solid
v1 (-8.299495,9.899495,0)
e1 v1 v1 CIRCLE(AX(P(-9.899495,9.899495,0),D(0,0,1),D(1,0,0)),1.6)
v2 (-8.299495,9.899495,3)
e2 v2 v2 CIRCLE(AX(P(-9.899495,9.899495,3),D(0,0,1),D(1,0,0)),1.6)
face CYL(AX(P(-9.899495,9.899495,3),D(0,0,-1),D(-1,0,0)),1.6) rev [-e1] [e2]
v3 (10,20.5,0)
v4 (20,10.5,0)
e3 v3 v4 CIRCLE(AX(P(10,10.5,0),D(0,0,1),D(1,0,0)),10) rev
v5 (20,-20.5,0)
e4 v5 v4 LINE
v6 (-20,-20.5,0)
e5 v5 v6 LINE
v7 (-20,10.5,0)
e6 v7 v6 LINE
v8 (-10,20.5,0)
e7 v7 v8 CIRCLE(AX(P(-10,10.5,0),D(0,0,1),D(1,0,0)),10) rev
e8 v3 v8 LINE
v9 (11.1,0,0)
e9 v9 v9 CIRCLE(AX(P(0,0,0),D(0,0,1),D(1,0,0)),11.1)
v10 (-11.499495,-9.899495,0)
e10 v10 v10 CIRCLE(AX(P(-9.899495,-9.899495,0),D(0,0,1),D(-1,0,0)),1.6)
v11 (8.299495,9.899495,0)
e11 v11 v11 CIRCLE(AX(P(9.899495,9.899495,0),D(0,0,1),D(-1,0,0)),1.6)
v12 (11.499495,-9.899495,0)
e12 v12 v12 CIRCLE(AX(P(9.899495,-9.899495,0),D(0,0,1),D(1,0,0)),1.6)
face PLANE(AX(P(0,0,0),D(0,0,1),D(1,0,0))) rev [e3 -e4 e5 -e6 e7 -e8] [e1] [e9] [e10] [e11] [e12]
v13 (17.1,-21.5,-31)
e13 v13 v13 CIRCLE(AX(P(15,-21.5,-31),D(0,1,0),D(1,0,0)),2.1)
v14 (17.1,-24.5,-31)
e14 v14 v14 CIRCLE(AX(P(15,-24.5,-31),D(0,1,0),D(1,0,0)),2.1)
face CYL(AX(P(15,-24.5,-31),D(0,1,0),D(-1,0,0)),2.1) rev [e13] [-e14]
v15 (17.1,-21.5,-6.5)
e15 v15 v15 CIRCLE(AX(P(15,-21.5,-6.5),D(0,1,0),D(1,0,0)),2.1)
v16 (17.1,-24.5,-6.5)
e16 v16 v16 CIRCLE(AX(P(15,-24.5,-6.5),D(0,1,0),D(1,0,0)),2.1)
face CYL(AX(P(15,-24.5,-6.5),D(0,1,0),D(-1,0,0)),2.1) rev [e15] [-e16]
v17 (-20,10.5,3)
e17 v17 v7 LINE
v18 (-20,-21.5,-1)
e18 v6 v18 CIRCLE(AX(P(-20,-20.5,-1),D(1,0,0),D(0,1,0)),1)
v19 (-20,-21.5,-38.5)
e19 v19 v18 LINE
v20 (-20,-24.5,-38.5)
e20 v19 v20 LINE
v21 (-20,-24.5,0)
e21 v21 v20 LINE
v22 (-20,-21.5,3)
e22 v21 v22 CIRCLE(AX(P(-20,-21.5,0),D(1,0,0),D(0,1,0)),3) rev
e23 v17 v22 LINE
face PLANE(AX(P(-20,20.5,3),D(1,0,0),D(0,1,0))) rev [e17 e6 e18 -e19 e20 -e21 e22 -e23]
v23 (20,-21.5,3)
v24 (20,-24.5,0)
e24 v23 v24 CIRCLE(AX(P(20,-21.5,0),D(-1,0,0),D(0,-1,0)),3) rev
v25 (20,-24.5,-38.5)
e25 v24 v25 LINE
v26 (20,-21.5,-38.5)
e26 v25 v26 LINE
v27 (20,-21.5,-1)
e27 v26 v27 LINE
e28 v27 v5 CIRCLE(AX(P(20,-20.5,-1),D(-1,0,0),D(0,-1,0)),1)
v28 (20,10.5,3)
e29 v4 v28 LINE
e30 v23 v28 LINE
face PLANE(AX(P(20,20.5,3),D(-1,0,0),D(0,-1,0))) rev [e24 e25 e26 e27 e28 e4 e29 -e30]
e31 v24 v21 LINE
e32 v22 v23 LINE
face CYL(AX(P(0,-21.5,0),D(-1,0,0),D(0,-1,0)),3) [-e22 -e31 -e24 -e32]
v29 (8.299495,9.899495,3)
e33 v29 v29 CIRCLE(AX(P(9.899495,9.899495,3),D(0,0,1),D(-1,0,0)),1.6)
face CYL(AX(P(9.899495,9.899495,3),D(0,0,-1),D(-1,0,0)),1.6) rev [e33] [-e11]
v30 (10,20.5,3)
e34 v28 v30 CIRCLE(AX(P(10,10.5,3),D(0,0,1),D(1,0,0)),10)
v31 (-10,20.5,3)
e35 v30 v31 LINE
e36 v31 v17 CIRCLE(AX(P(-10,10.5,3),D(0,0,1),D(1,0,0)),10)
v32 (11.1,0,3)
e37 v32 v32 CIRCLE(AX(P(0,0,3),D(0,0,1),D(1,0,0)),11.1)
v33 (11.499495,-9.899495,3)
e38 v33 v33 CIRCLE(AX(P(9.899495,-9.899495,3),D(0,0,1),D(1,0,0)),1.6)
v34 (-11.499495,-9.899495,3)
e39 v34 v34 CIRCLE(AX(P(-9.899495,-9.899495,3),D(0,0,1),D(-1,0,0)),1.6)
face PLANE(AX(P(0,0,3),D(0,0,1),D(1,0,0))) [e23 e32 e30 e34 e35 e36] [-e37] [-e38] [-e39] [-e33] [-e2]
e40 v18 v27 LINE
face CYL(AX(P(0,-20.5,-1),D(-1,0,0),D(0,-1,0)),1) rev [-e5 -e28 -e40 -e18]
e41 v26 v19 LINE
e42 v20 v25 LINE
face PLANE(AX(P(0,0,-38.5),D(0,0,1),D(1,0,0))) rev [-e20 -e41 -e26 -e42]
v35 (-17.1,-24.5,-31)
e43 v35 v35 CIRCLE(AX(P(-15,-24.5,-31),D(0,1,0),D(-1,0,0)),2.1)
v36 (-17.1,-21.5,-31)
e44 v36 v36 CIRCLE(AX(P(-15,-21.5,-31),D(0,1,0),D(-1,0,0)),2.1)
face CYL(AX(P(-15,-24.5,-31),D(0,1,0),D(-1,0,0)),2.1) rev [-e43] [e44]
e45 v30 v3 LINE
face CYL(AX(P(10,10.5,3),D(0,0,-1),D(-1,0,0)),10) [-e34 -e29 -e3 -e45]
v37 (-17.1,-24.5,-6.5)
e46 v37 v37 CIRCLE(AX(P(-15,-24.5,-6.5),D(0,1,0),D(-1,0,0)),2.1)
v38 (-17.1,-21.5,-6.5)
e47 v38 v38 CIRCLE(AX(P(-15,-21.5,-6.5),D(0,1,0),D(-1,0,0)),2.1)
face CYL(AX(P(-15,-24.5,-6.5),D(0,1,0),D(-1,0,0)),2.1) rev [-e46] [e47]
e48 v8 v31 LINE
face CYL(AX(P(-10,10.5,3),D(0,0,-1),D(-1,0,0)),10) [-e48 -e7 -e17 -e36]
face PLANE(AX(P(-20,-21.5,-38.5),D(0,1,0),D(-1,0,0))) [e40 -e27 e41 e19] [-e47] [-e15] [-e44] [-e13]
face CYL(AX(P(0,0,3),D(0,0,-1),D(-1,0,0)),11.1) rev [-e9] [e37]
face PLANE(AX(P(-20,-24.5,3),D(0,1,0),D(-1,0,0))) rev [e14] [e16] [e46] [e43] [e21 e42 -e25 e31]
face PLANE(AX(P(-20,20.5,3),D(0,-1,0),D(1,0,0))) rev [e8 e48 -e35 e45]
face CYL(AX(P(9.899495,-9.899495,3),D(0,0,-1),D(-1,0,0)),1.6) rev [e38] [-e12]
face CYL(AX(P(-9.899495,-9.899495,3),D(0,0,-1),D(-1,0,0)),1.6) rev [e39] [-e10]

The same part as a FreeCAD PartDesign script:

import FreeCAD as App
import Part
import Sketcher

V = App.Vector


def edges_at(feature, points):
    """Names of the edges that pass closest to the given points."""
    edges = feature.Shape.Edges
    near = lambda p: min(range(len(edges)), key=lambda i: edges[i].distToShape(Part.Vertex(*p))[0])
    return sorted({f"Edge{near(p) + 1}" for p in points})


def add_polygon(sketch, points):
    """Adds a closed chain of lines whose ends are joined by coincident constraints."""
    first, n = sketch.GeometryCount, len(points)
    for a, b in zip(points, points[1:] + points[:1]):
        sketch.addGeometry(Part.LineSegment(App.Vector(*a, 0), App.Vector(*b, 0)), False)
    for i in range(n):
        sketch.addConstraint(Sketcher.Constraint("Coincident", first + i, 2, first + (i + 1) % n, 1))

doc = App.newDocument("Part")
body = doc.addObject("PartDesign::Body", "Body")

sketch1 = body.newObject("Sketcher::SketchObject", "Sketch")
sketch1.AttachmentSupport = (doc.getObject("XY_Plane"), [""])
sketch1.MapMode = "FlatFace"
add_polygon(sketch1, [(-20, 20.5), (-20, -24.5), (20, -24.5), (20, 20.5)])
sketch1.addGeometry(Part.Circle(V(-9.9, -9.9, 0), V(0, 0, 1), 1.6), False)
sketch1.addGeometry(Part.Circle(V(9.9, -9.9, 0), V(0, 0, 1), 1.6), False)
sketch1.addGeometry(Part.Circle(V(-9.9, 9.9, 0), V(0, 0, 1), 1.6), False)
sketch1.addGeometry(Part.Circle(V(0, 0, 0), V(0, 0, 1), 11.1), False)
sketch1.addGeometry(Part.Circle(V(9.9, 9.9, 0), V(0, 0, 1), 1.6), False)
sketch1.addConstraint(Sketcher.Constraint("Vertical", 0))
sketch1.addConstraint(Sketcher.Constraint("Horizontal", 1))
sketch1.addConstraint(Sketcher.Constraint("Vertical", 2))
sketch1.addConstraint(Sketcher.Constraint("Horizontal", 3))
sketch1.addConstraint(Sketcher.Constraint("Coincident", 7, 3, -1, 1))
sketch1.addConstraint(Sketcher.Constraint("Equal", 4, 5))
sketch1.addConstraint(Sketcher.Constraint("Equal", 5, 6))
sketch1.addConstraint(Sketcher.Constraint("Equal", 6, 8))
sketch1.addConstraint(Sketcher.Constraint("Symmetric", 5, 3, 6, 3, -1, 1))
sketch1.addConstraint(Sketcher.Constraint("Symmetric", 4, 3, 8, 3, -1, 1))
sketch1.addConstraint(Sketcher.Constraint("Symmetric", 4, 3, 5, 3, -2))
sketch1.addConstraint(Sketcher.Constraint("Diameter", 4, 3.2))
sketch1.addConstraint(Sketcher.Constraint("Diameter", 7, 22.2))
sketch1.addConstraint(Sketcher.Constraint("DistanceX", 1, 1, 1, 2, 40.0))
sketch1.addConstraint(Sketcher.Constraint("DistanceY", 0, 2, 0, 1, 45.0))
sketch1.addConstraint(Sketcher.Constraint("DistanceX", 0, 2, -1, 1, 20.0))
sketch1.addConstraint(Sketcher.Constraint("DistanceY", 0, 2, -1, 1, 24.5))
sketch1.addConstraint(Sketcher.Constraint("DistanceX", 4, 3, 5, 3, 19.79899))
sketch1.addConstraint(Sketcher.Constraint("DistanceY", 4, 3, 6, 3, 19.79899))
pad1 = body.newObject("PartDesign::Pad", "Pad")
pad1.Profile = sketch1
pad1.Length = 3

sketch2 = body.newObject("Sketcher::SketchObject", "Sketch001")
sketch2.AttachmentSupport = (doc.getObject("XY_Plane"), [""])
sketch2.MapMode = "FlatFace"
sketch2.AttachmentOffset = App.Placement(V(0, 0, 3), App.Rotation())
add_polygon(sketch2, [(-20, -21.5), (-20, -24.5), (20, -24.5), (20, -21.5)])
sketch2.addConstraint(Sketcher.Constraint("Vertical", 0))
sketch2.addConstraint(Sketcher.Constraint("Horizontal", 1))
sketch2.addConstraint(Sketcher.Constraint("Vertical", 2))
sketch2.addConstraint(Sketcher.Constraint("Horizontal", 3))
sketch2.addConstraint(Sketcher.Constraint("DistanceX", 1, 1, 1, 2, 40.0))
sketch2.addConstraint(Sketcher.Constraint("DistanceY", 0, 2, 0, 1, 3.0))
sketch2.addConstraint(Sketcher.Constraint("DistanceX", 0, 2, -1, 1, 20.0))
sketch2.addConstraint(Sketcher.Constraint("DistanceY", 0, 2, -1, 1, 24.5))
pad2 = body.newObject("PartDesign::Pad", "Pad001")
pad2.Profile = sketch2
pad2.Length = 41.5
pad2.Reversed = True

sketch3 = body.newObject("Sketcher::SketchObject", "Sketch002")
sketch3.AttachmentSupport = (doc.getObject("XZ_Plane"), [""])
sketch3.MapMode = "FlatFace"
sketch3.AttachmentOffset = App.Placement(V(0, 0, 21.5), App.Rotation())
sketch3.addGeometry(Part.Circle(V(-15, -31, 0), V(0, 0, 1), 2.1), False)
sketch3.addGeometry(Part.Circle(V(15, -31, 0), V(0, 0, 1), 2.1), False)
sketch3.addGeometry(Part.Circle(V(15, -6.5, 0), V(0, 0, 1), 2.1), False)
sketch3.addGeometry(Part.Circle(V(-15, -6.5, 0), V(0, 0, 1), 2.1), False)
sketch3.addConstraint(Sketcher.Constraint("Equal", 0, 1))
sketch3.addConstraint(Sketcher.Constraint("Equal", 1, 2))
sketch3.addConstraint(Sketcher.Constraint("Equal", 2, 3))
sketch3.addConstraint(Sketcher.Constraint("Symmetric", 0, 3, 1, 3, -2))
sketch3.addConstraint(Sketcher.Constraint("Symmetric", 2, 3, 3, 3, -2))
sketch3.addConstraint(Sketcher.Constraint("Vertical", 1, 3, 2, 3))
sketch3.addConstraint(Sketcher.Constraint("Diameter", 0, 4.2))
sketch3.addConstraint(Sketcher.Constraint("DistanceX", 0, 3, -1, 1, 15.0))
sketch3.addConstraint(Sketcher.Constraint("DistanceY", 0, 3, -1, 1, 31.0))
sketch3.addConstraint(Sketcher.Constraint("DistanceY", 2, 3, -1, 1, 6.5))
pocket1 = body.newObject("PartDesign::Pocket", "Pocket")
pocket1.Profile = sketch3
pocket1.Type = "ThroughAll"
pocket1.Reversed = True
doc.recompute()

fillet = body.newObject("PartDesign::Fillet", "Fillet")
fillet.Base = (pocket1, edges_at(pocket1, [(-20, 20.5, 1.5), (20, 20.5, 1.5)]))
fillet.Radius = 10
doc.recompute()

fillet2 = body.newObject("PartDesign::Fillet", "Fillet001")
fillet2.Base = (fillet, edges_at(fillet, [(0, -24.5, 3)]))
fillet2.Radius = 3
doc.recompute()

fillet3 = body.newObject("PartDesign::Fillet", "Fillet002")
fillet3.Base = (fillet2, edges_at(fillet2, [(0, -21.5, 0)]))
fillet3.Radius = 1

doc.recompute()
